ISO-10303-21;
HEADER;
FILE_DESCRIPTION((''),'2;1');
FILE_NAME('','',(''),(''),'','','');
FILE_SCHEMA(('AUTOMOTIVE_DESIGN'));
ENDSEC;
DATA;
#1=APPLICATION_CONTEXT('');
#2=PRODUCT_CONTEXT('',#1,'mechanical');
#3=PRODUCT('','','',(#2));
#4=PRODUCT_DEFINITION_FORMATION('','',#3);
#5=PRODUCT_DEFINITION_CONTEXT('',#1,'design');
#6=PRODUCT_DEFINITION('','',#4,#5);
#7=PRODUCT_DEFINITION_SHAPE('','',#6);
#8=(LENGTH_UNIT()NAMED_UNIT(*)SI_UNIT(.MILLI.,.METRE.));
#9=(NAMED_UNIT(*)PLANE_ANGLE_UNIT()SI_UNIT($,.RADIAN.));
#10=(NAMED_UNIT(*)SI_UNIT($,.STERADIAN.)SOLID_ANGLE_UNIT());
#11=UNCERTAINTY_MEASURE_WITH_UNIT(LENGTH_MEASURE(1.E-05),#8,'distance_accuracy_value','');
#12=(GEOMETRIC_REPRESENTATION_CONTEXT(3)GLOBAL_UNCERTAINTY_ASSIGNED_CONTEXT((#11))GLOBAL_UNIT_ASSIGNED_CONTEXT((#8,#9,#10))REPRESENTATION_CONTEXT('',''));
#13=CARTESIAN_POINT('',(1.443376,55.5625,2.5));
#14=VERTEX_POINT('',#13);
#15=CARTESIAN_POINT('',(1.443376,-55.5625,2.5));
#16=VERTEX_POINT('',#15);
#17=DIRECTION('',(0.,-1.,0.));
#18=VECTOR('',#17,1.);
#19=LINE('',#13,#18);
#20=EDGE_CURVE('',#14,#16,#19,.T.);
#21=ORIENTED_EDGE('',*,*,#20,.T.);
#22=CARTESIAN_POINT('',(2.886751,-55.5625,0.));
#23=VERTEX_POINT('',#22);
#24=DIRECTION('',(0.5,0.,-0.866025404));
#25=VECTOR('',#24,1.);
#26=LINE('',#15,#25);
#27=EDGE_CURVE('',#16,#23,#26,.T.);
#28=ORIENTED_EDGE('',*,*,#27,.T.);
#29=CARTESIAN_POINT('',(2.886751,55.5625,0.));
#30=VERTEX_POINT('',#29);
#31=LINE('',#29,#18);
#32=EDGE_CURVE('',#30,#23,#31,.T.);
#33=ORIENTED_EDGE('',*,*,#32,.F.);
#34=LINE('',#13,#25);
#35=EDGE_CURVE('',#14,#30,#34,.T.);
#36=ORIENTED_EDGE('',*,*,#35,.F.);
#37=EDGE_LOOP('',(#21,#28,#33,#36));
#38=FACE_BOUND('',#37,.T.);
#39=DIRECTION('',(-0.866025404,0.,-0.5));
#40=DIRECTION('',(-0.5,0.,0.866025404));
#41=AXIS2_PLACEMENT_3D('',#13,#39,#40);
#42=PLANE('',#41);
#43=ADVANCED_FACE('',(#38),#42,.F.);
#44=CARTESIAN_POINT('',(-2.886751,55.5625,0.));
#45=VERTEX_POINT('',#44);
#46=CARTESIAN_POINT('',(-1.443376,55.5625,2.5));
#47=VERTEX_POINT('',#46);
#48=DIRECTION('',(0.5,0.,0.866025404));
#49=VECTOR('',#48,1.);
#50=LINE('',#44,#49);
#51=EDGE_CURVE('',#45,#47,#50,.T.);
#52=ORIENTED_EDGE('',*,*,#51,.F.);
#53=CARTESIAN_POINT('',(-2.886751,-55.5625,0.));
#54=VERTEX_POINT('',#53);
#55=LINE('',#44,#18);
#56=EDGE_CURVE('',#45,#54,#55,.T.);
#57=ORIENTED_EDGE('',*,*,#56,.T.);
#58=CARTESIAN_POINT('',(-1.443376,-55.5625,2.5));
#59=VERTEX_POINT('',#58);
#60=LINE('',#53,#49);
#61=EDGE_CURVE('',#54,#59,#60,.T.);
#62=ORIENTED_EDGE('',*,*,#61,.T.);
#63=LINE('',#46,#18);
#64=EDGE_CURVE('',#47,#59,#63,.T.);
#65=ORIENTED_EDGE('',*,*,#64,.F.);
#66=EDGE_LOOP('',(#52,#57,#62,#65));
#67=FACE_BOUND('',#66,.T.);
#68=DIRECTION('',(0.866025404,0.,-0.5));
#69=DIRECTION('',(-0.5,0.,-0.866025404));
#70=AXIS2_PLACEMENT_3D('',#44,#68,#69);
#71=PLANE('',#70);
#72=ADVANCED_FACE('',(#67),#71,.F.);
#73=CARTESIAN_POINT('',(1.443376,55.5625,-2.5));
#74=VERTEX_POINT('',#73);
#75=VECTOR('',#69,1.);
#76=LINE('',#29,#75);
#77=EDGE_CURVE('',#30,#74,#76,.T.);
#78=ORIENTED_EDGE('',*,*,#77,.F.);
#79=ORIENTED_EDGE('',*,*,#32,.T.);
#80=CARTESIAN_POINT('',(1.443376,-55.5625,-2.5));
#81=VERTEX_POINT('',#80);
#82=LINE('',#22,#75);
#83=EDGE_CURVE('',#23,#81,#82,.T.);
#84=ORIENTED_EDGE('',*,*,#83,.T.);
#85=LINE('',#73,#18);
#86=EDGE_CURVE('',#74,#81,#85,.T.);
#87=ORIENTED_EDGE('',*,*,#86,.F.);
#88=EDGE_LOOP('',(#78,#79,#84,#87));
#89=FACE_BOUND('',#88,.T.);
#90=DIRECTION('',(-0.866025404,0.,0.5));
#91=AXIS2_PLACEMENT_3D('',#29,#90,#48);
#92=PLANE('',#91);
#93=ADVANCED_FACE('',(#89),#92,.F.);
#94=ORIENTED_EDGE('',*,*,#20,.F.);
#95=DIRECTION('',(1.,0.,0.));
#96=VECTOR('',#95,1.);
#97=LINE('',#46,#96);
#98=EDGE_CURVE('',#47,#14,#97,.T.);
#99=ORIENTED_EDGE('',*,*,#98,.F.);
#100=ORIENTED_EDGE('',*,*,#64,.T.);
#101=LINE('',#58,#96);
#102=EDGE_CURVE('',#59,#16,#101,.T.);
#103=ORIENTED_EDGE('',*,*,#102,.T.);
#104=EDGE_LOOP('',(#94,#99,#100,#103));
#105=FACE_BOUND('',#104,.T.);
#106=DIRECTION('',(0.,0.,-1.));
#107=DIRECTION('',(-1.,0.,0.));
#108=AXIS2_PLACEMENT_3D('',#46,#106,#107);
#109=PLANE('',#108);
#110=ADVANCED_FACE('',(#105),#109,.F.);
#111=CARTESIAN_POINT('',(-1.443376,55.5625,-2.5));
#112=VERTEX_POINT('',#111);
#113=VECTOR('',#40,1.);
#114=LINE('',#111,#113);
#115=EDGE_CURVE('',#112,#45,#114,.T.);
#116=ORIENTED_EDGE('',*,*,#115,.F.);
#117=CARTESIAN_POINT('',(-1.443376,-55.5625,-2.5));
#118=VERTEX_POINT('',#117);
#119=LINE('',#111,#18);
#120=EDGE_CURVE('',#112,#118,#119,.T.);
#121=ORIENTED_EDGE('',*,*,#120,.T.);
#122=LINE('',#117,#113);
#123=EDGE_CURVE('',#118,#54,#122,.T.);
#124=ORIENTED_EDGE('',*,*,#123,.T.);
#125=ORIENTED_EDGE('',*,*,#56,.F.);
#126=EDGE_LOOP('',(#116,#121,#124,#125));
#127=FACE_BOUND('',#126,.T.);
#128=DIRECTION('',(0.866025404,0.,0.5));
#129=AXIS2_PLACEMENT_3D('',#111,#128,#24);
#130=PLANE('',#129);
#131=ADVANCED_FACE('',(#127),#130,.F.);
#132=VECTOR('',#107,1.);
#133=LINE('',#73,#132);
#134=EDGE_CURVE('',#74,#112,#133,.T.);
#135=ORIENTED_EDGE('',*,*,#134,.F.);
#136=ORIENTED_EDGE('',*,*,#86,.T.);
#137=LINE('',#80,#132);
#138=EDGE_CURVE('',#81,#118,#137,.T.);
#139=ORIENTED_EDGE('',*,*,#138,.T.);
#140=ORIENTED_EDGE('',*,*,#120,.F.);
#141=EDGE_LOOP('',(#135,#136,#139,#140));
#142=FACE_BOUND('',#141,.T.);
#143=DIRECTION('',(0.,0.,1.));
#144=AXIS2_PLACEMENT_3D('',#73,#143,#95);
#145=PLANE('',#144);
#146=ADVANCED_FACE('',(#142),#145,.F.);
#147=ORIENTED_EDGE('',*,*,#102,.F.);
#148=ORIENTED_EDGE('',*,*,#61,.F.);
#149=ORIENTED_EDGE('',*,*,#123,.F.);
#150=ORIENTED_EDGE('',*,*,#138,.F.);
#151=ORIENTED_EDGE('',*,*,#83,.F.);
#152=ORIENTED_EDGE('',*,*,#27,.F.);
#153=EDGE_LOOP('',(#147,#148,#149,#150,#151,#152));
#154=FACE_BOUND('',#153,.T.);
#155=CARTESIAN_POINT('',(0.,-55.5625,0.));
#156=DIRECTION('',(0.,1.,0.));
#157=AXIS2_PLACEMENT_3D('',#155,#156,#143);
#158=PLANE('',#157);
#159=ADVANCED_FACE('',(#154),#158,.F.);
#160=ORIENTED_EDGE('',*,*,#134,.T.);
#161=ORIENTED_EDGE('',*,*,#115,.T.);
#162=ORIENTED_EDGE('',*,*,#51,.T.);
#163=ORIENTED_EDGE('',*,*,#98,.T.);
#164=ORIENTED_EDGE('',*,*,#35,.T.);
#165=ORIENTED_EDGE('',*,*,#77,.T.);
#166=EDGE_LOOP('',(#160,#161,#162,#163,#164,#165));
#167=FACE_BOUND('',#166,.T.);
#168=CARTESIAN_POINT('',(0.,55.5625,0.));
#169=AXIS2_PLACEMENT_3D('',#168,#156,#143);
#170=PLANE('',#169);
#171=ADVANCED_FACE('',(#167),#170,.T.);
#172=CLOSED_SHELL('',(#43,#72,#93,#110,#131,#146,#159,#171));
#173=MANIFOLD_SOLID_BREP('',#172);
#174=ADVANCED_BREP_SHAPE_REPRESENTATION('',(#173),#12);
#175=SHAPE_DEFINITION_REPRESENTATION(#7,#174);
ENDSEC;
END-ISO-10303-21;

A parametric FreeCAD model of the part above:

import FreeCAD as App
import Part
import Sketcher
Q = App.Units.Quantity

doc = App.newDocument("Part")
params = doc.addObject("Spreadsheet::Sheet", "Params")
for row, (alias, value) in enumerate([
    ("pad1_length", "4.375 in"),
], start=1):
    params.set(f"A{row}", alias)
    params.set(f"B{row}", "=" + value)
    params.setAlias(f"B{row}", alias)

body = doc.addObject("PartDesign::Body", "Body")

sketch1 = doc.addObject("Sketcher::SketchObject", "Sketch")
body.addObject(sketch1)
sketch1.AttachmentSupport = (doc.XZ_Plane, [""])
sketch1.MapMode = "FlatFace"
sketch1.addGeometry(Part.LineSegment(App.Vector(2.9, 0, 0), App.Vector(1.4, -2.5, 0)), False)
sketch1.addGeometry(Part.LineSegment(App.Vector(1.4, -2.5, 0), App.Vector(-1.4, -2.5, 0)), False)
sketch1.addGeometry(Part.LineSegment(App.Vector(-1.4, -2.5, 0), App.Vector(-2.9, 0, 0)), False)
sketch1.addGeometry(Part.LineSegment(App.Vector(-2.9, 0, 0), App.Vector(-1.4, 2.5, 0)), False)
sketch1.addGeometry(Part.LineSegment(App.Vector(-1.4, 2.5, 0), App.Vector(1.4, 2.5, 0)), False)
sketch1.addGeometry(Part.LineSegment(App.Vector(1.4, 2.5, 0), App.Vector(2.9, 0, 0)), False)
sketch1.addConstraint(Sketcher.Constraint("Coincident", 0, 2, 1, 1))
sketch1.addConstraint(Sketcher.Constraint("Coincident", 1, 2, 2, 1))
sketch1.addConstraint(Sketcher.Constraint("Coincident", 2, 2, 3, 1))
sketch1.addConstraint(Sketcher.Constraint("Coincident", 3, 2, 4, 1))
sketch1.addConstraint(Sketcher.Constraint("Coincident", 4, 2, 5, 1))
sketch1.addConstraint(Sketcher.Constraint("Coincident", 5, 2, 0, 1))
sketch1.addConstraint(Sketcher.Constraint("Horizontal", 1))
sketch1.addConstraint(Sketcher.Constraint("Horizontal", 4))
sketch1.addConstraint(Sketcher.Constraint("Symmetric", 0, 2, 3, 2, -1, 1))
sketch1.addConstraint(Sketcher.Constraint("Symmetric", 2, 2, 5, 2, -1, 1))
sketch1.addConstraint(Sketcher.Constraint("PointOnObject", 2, 2, -1))
sketch1.addConstraint(Sketcher.Constraint("Parallel", 2, 5))
sketch1.addConstraint(Sketcher.Constraint("Vertical", 1, 2, 3, 2))
sketch1.addConstraint(Sketcher.Constraint("Angle", 0, Q("-120 deg")))
sketch1.addConstraint(Sketcher.Constraint("DistanceX", 1, 2, 1, 1, Q("2.886751 mm")))
sketch1.addConstraint(Sketcher.Constraint("DistanceY", 0, 2, -1, 1, Q("2.5 mm")))
pad1 = doc.addObject("PartDesign::Pad", "Pad")
body.addObject(pad1)
pad1.Profile = sketch1
pad1.setExpression("Length", "Params.pad1_length")
pad1.Midplane = True

doc.recompute()
